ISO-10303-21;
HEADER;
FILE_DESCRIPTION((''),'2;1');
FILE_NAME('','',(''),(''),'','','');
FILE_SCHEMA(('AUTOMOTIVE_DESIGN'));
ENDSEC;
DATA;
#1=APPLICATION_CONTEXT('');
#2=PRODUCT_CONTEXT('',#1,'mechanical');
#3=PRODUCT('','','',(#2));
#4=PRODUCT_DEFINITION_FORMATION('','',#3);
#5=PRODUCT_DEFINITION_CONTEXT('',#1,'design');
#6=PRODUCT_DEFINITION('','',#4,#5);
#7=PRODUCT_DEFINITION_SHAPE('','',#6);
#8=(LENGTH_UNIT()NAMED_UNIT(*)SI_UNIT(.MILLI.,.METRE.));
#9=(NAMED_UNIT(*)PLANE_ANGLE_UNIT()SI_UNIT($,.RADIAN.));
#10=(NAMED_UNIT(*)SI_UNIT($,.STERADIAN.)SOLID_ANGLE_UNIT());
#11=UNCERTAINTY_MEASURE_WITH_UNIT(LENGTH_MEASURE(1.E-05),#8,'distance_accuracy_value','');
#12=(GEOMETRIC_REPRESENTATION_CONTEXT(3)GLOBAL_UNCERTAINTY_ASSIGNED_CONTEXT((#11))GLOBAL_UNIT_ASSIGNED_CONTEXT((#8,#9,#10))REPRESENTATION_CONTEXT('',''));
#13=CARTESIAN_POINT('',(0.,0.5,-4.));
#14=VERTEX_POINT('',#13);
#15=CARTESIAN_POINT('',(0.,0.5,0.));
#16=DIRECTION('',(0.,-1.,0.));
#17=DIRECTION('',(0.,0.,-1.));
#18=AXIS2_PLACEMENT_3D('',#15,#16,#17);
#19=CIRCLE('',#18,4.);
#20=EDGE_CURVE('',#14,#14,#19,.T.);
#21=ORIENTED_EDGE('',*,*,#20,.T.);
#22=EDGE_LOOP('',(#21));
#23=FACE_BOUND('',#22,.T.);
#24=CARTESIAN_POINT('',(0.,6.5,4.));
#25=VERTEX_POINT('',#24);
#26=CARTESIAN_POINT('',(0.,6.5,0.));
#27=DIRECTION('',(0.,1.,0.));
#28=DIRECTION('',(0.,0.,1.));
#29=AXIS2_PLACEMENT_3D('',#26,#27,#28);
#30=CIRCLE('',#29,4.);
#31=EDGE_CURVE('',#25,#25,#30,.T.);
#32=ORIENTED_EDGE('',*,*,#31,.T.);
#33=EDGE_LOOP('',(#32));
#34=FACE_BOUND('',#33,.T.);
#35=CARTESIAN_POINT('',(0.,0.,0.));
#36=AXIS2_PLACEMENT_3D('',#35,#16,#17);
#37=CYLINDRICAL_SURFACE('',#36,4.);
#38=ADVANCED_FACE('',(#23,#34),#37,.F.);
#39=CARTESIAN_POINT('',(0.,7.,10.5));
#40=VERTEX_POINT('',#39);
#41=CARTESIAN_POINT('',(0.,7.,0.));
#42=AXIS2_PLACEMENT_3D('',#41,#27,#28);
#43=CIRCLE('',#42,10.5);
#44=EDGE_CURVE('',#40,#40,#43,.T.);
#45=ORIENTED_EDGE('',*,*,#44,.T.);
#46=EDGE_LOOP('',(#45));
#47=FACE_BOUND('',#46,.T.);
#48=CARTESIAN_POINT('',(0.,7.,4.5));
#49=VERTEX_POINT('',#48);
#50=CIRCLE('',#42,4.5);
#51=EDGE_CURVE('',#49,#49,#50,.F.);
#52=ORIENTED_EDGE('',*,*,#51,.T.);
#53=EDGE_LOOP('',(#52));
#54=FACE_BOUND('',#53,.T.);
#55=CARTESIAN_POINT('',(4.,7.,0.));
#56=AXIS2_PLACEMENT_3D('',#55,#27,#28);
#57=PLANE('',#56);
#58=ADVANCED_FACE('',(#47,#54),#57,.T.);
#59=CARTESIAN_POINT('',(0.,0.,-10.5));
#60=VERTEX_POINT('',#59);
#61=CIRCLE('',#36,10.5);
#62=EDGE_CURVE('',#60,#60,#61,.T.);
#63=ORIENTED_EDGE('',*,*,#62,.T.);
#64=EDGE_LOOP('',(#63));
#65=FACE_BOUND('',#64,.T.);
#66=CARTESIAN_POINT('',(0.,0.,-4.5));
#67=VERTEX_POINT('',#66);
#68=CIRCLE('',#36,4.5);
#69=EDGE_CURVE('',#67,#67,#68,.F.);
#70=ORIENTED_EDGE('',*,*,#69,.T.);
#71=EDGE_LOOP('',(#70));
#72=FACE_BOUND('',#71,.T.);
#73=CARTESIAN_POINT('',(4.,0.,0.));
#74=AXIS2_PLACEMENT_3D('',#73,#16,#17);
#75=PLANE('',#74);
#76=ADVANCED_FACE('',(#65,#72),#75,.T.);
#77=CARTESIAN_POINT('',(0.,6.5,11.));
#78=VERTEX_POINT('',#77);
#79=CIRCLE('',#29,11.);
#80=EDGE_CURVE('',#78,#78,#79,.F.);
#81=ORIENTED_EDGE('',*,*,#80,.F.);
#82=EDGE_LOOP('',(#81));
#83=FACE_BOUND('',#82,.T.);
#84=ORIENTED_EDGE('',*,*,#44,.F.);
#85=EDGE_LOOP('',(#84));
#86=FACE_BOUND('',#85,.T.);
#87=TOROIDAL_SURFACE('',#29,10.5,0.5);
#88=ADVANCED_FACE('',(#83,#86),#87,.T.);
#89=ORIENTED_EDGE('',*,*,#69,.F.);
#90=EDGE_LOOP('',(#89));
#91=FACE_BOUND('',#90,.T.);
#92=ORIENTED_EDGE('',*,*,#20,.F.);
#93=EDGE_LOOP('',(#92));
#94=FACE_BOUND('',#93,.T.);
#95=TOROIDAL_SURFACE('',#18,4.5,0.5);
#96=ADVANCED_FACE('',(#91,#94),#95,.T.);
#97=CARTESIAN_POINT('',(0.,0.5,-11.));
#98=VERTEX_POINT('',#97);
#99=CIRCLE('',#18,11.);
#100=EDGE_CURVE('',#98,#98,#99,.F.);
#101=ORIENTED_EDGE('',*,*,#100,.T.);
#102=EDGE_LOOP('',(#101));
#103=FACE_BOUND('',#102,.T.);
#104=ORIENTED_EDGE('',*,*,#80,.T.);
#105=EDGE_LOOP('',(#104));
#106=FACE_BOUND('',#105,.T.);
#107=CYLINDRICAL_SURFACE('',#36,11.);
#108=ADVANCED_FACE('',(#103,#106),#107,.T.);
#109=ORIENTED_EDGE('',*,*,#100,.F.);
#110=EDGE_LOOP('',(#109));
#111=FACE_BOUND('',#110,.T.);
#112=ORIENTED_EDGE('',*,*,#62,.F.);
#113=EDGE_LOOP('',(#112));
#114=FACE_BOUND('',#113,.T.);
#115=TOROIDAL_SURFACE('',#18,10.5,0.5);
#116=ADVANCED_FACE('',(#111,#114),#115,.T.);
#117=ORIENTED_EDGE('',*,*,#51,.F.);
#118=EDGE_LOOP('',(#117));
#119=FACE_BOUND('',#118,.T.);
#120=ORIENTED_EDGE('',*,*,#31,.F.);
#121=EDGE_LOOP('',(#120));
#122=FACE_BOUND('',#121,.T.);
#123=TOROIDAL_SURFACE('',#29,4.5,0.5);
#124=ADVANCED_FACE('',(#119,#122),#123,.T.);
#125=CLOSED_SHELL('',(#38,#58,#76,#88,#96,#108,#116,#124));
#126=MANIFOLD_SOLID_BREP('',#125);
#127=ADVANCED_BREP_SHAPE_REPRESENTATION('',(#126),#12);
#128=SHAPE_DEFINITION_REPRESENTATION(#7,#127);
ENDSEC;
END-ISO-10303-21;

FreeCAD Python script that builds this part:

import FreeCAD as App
import Part
import Sketcher
from FreeCAD import Vector
Q = App.Units.Quantity


def edges_at(feature, points):
    """Names of the edges that pass closest to the given points."""
    edges = feature.Shape.Edges
    near = lambda p: min(range(len(edges)), key=lambda i: edges[i].distToShape(Part.Vertex(*p))[0])
    return sorted({f"Edge{near(p) + 1}" for p in points})


def add_polygon(sketch, points):
    """Adds a closed chain of lines whose ends are joined by coincident constraints."""
    first, n = sketch.GeometryCount, len(points)
    for a, b in zip(points, points[1:] + points[:1]):
        sketch.addGeometry(Part.LineSegment(App.Vector(*a, 0), App.Vector(*b, 0)), False)
    for i in range(n):
        sketch.addConstraint(Sketcher.Constraint("Coincident", first + i, 2, first + (i + 1) % n, 1))

doc = App.newDocument("Part")
body = doc.addObject("PartDesign::Body", "Body")

sketch1 = body.newObject("Sketcher::SketchObject", "Sketch")
sketch1.AttachmentSupport = (doc.getObject("XY_Plane"), [""])
sketch1.MapMode = "FlatFace"
add_polygon(sketch1, [(4, 7), (4, 0), (11, 0), (11, 7)])
sketch1.addConstraint([
    Sketcher.Constraint("Vertical", 0),
    Sketcher.Constraint("Horizontal", 1),
    Sketcher.Constraint("Vertical", 2),
    Sketcher.Constraint("Horizontal", 3),
    Sketcher.Constraint("PointOnObject", 0, 2, -1),
    Sketcher.Constraint("Equal", 3, 0),
    Sketcher.Constraint("DistanceX", 1, 1, 1, 2, Q("7 mm")),
    Sketcher.Constraint("DistanceX", -1, 1, 0, 2, Q("4 mm")),
])
revolution = body.newObject("PartDesign::Revolution", "Revolution")
revolution.Profile = sketch1
revolution.ReferenceAxis = (sketch1, ["V_Axis"])
revolution.Angle = 360
doc.recompute()

fillet = body.newObject("PartDesign::Fillet", "Fillet")
fillet.Base = (revolution, edges_at(revolution, [
    (-4, 0, 0),
    (-11, 0, 0),
    (-11, 7, 0),
    (-4, 7, 0),
]))
fillet.Radius = 0.5

doc.recompute()
